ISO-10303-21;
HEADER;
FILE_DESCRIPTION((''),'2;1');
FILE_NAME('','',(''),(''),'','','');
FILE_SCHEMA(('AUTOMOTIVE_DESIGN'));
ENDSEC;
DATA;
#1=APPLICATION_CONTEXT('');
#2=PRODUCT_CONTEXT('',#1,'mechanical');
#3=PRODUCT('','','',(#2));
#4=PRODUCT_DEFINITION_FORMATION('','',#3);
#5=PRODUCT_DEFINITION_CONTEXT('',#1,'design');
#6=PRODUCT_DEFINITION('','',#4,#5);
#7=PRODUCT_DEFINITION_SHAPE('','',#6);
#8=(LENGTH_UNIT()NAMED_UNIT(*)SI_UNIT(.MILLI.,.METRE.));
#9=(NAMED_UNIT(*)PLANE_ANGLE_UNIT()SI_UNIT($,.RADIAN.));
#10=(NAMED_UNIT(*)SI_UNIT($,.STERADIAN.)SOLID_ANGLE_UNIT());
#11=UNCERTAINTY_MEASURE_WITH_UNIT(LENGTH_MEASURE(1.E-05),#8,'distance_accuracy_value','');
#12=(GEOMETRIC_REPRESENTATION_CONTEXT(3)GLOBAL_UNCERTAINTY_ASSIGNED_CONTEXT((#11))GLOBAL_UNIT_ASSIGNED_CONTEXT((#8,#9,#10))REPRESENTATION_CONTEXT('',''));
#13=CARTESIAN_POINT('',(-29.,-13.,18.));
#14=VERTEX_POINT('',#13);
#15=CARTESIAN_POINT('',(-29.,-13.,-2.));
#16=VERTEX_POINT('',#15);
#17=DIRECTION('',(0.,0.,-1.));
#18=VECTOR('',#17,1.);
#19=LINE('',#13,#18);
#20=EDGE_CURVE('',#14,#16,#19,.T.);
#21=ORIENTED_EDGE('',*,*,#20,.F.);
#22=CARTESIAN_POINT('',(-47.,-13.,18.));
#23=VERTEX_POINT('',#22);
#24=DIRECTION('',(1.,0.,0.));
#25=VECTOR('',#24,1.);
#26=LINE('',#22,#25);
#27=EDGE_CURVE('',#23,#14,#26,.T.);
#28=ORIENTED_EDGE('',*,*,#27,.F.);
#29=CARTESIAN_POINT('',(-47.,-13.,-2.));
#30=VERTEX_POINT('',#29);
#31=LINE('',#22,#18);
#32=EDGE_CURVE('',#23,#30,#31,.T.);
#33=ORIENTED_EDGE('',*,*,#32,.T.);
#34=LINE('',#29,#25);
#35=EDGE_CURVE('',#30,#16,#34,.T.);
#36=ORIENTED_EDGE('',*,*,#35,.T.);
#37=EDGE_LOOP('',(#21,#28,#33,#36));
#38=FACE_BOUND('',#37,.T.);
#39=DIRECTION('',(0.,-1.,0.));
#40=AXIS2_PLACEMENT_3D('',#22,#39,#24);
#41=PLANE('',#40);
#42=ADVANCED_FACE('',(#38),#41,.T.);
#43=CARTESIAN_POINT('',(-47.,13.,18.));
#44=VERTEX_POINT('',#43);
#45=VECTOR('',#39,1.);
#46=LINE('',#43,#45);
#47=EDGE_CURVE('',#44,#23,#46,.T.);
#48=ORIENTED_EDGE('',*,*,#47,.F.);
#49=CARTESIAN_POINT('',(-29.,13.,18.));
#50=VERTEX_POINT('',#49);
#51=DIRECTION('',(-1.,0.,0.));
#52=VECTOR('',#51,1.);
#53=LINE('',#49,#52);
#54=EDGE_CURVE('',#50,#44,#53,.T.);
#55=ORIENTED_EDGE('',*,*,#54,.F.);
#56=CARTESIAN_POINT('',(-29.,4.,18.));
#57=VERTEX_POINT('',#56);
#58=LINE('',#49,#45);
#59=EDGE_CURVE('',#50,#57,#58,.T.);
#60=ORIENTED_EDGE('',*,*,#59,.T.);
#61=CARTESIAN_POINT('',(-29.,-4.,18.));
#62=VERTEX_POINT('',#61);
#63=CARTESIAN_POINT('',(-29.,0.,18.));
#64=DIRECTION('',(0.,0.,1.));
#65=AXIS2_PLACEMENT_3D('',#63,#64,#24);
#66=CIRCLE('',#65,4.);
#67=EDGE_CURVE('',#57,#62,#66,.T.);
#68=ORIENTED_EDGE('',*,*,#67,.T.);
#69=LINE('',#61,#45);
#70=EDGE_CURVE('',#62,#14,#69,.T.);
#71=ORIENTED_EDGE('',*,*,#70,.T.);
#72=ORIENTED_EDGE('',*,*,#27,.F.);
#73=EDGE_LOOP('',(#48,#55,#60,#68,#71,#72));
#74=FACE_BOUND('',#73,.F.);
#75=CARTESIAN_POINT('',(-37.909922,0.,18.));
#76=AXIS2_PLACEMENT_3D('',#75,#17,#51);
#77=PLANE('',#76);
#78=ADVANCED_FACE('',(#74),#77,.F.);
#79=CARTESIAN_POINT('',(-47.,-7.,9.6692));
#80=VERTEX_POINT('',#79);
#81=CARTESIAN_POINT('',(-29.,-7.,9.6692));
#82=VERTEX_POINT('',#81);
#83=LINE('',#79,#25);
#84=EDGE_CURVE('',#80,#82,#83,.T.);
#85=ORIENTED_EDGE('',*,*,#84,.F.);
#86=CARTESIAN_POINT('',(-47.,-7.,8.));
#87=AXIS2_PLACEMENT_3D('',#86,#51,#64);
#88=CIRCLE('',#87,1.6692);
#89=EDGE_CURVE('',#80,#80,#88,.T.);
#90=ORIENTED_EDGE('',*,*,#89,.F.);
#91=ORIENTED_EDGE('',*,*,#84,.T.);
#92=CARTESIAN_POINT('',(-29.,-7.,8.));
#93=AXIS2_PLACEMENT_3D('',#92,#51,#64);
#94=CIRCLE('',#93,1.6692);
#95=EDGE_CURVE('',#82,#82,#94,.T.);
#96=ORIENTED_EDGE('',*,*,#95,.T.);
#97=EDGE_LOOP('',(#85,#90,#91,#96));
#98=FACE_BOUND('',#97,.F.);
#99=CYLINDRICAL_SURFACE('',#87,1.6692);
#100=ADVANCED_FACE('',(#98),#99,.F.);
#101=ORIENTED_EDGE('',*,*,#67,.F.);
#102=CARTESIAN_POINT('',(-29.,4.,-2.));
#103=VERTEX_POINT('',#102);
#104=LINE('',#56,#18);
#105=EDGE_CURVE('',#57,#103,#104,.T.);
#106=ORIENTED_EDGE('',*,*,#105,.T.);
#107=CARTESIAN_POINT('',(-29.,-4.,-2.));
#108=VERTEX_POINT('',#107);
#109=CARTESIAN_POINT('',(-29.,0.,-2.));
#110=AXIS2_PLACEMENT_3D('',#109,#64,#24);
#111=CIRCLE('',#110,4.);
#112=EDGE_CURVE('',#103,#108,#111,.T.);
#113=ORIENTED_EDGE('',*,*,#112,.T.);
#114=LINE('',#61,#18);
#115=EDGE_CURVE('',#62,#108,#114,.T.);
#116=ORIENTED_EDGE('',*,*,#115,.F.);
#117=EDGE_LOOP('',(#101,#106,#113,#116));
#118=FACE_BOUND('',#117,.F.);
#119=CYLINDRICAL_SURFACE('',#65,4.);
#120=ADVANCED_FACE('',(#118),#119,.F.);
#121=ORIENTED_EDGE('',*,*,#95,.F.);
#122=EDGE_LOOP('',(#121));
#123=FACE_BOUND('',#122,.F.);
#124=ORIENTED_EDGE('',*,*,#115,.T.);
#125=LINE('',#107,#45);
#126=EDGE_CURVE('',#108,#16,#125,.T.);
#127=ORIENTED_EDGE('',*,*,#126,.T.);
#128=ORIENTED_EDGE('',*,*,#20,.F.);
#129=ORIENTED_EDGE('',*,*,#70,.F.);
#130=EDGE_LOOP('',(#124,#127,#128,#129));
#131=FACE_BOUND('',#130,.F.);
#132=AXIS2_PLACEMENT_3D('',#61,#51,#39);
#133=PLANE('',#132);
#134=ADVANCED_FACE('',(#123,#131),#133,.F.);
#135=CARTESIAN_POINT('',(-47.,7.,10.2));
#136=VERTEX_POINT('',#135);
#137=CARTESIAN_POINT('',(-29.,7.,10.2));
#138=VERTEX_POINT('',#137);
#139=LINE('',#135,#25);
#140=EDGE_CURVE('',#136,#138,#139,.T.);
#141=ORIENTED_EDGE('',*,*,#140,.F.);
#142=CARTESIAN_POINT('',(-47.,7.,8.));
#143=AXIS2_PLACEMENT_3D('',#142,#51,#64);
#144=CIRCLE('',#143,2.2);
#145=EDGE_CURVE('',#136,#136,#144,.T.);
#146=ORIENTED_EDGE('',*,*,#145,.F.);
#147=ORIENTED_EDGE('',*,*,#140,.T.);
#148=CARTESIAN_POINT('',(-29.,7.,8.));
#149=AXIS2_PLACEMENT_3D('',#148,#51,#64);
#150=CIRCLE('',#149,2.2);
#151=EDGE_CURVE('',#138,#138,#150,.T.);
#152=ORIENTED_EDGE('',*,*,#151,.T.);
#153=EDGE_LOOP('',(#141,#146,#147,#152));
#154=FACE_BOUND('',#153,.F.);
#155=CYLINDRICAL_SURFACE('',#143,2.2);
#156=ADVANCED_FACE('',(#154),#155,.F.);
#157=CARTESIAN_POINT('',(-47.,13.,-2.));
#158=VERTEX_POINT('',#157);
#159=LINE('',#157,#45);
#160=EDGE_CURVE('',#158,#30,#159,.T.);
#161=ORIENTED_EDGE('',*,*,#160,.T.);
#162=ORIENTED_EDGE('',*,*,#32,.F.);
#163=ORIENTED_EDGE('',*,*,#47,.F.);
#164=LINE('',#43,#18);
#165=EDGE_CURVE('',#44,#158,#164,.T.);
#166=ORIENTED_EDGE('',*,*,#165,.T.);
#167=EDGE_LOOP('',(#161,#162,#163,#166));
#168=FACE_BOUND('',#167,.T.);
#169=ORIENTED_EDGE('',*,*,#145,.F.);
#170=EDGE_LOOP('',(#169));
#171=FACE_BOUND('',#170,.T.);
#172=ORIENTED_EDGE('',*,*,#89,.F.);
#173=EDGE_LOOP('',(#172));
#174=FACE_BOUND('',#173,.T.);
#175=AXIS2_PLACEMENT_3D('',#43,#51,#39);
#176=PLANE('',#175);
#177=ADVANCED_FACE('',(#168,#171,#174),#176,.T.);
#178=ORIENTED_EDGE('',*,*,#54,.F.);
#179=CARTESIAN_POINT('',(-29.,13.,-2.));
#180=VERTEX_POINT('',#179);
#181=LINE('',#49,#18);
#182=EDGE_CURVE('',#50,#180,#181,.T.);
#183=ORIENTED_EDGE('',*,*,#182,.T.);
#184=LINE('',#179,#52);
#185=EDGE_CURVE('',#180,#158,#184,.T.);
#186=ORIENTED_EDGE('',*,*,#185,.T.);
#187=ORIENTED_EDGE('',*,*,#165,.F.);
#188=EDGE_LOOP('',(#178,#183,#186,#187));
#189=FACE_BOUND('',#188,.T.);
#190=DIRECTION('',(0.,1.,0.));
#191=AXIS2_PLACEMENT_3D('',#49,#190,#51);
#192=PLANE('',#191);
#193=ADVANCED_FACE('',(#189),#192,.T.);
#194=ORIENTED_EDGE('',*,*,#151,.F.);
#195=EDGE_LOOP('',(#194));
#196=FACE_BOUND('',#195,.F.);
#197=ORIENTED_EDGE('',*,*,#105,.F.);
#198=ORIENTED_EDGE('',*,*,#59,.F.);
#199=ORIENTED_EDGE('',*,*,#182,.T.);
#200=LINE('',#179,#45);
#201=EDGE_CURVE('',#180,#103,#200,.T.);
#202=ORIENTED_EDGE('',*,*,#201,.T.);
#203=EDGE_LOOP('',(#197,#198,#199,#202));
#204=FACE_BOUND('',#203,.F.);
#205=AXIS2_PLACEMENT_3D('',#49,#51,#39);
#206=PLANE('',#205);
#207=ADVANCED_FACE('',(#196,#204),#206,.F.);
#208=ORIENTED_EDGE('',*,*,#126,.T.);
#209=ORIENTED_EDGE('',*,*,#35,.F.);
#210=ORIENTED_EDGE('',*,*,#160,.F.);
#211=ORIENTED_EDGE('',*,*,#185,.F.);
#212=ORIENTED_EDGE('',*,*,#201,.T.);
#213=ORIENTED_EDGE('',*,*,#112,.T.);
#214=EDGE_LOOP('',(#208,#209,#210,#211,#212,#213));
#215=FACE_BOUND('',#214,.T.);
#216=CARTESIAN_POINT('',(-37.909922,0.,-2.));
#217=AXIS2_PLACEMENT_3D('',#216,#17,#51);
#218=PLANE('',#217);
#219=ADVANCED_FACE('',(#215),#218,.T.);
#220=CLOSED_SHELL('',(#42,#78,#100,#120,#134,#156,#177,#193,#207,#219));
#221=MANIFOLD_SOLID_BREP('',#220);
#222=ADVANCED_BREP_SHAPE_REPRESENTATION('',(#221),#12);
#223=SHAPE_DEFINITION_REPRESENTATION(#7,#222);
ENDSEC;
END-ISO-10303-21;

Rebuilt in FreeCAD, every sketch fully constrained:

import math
import FreeCAD as App
import Part
import Sketcher

V = App.Vector

doc = App.newDocument("Part")
body = doc.addObject("PartDesign::Body", "Body")

# Sketch on XY plane
sketch1 = body.newObject("Sketcher::SketchObject", "Sketch")
sketch1.AttachmentSupport = (doc.getObject("XY_Plane"), [""])
sketch1.MapMode = "FlatFace"
sketch1.AttachmentOffset = App.Placement(V(0, 0, 18), App.Rotation())
sketch1.addGeometry(Part.LineSegment(V(-29, 4, 0), V(-29, 13, 0)), False)
sketch1.addGeometry(Part.LineSegment(V(-29, 13, 0), V(-47, 13, 0)), False)
sketch1.addGeometry(Part.LineSegment(V(-47, 13, 0), V(-47, -13, 0)), False)
sketch1.addGeometry(Part.LineSegment(V(-47, -13, 0), V(-29, -13, 0)), False)
sketch1.addGeometry(Part.LineSegment(V(-29, -13, 0), V(-29, -4, 0)), False)
sketch1.addGeometry(Part.ArcOfCircle(Part.Circle(V(-29, 0, 0), V(0, 0, 1), 4), math.radians(90), math.radians(270)), False)
sketch1.addConstraint(Sketcher.Constraint("Coincident", 0, 2, 1, 1))
sketch1.addConstraint(Sketcher.Constraint("Coincident", 1, 2, 2, 1))
sketch1.addConstraint(Sketcher.Constraint("Coincident", 2, 2, 3, 1))
sketch1.addConstraint(Sketcher.Constraint("Coincident", 3, 2, 4, 1))
sketch1.addConstraint(Sketcher.Constraint("Coincident", 4, 2, 5, 2))
sketch1.addConstraint(Sketcher.Constraint("Coincident", 5, 1, 0, 1))
sketch1.addConstraint(Sketcher.Constraint("Vertical", 0))
sketch1.addConstraint(Sketcher.Constraint("Horizontal", 1))
sketch1.addConstraint(Sketcher.Constraint("Vertical", 2))
sketch1.addConstraint(Sketcher.Constraint("Horizontal", 3))
sketch1.addConstraint(Sketcher.Constraint("Vertical", 4))
sketch1.addConstraint(Sketcher.Constraint("Symmetric", 0, 2, 3, 2, -1))
sketch1.addConstraint(Sketcher.Constraint("PointOnObject", 5, 3, -1))
sketch1.addConstraint(Sketcher.Constraint("Vertical", 5, 3, 0, 2))
sketch1.addConstraint(Sketcher.Constraint("DistanceX", 5, 3, -1, 1, 29.0))
sketch1.addConstraint(Sketcher.Constraint("DistanceX", 1, 2, -1, 1, 47.0))
sketch1.addConstraint(Sketcher.Constraint("Radius", 5, 4.0))
sketch1.addConstraint(Sketcher.Constraint("DistanceY", 0, 1, 0, 2, 9.0))
pad1 = body.newObject("PartDesign::Pad", "Pad")
pad1.Profile = sketch1
pad1.Length = 20
pad1.Reversed = True

# Sketch on YZ plane
sketch2 = body.newObject("Sketcher::SketchObject", "Sketch001")
sketch2.AttachmentSupport = (doc.getObject("YZ_Plane"), [""])
sketch2.MapMode = "FlatFace"
sketch2.AttachmentOffset = App.Placement(V(0, 0, -47), App.Rotation())
sketch2.addGeometry(Part.Circle(V(-7, 8, 0), V(0, 0, 1), 1.7), False)
sketch2.addGeometry(Part.Circle(V(7, 8, 0), V(0, 0, 1), 2.2), False)
sketch2.addConstraint(Sketcher.Constraint("Symmetric", 0, 3, 1, 3, -2))
sketch2.addConstraint(Sketcher.Constraint("Diameter", 1, 4.4))
sketch2.addConstraint(Sketcher.Constraint("DistanceX", 0, 3, -1, 1, 7.0))
sketch2.addConstraint(Sketcher.Constraint("DistanceY", -1, 1, 0, 3, 8.0))
sketch2.addConstraint(Sketcher.Constraint("Diameter", 0, 3.3384))
pocket1 = body.newObject("PartDesign::Pocket", "Pocket")
pocket1.Profile = sketch2
pocket1.Type = "ThroughAll"
pocket1.Reversed = True

doc.recompute()
